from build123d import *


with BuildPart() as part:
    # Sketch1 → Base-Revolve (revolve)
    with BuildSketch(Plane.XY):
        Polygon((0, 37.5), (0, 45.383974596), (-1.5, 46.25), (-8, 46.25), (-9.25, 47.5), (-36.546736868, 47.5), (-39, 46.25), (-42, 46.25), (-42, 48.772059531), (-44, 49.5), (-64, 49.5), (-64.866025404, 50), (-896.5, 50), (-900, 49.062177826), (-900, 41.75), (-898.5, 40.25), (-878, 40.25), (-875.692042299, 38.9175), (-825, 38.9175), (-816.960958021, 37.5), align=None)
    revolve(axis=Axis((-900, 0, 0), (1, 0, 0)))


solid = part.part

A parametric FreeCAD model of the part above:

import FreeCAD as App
import Part
import Sketcher

V = App.Vector
Q = App.Units.Quantity


def add_polygon(sketch, points):
    """Adds a closed chain of lines whose ends are joined by coincident constraints."""
    first, n = sketch.GeometryCount, len(points)
    for a, b in zip(points, points[1:] + points[:1]):
        sketch.addGeometry(Part.LineSegment(App.Vector(*a, 0), App.Vector(*b, 0)), False)
    for i in range(n):
        sketch.addConstraint(Sketcher.Constraint("Coincident", first + i, 2, first + (i + 1) % n, 1))

doc = App.newDocument("Part")
body = doc.addObject("PartDesign::Body", "Body")

# Sketch on XY plane
sketch1 = body.newObject("Sketcher::SketchObject", "Sketch")
sketch1.AttachmentSupport = (doc.getObject("XY_Plane"), [""])
sketch1.MapMode = "FlatFace"
add_polygon(sketch1, [(0, 37.5), (0, 45.4), (-1.5, 46.2), (-8, 46.2), (-9.2, 47.5), (-36.5, 47.5), (-39, 46.2), (-42, 46.2), (-42, 48.8), (-44, 49.5), (-64, 49.5), (-64.9, 50), (-896.5, 50), (-900, 49.1), (-900, 41.8), (-898.5, 40.2), (-878, 40.2), (-875.7, 38.9), (-825, 38.9), (-817, 37.5)])  # lines 0-19
sketch1.addConstraint(Sketcher.Constraint("Vertical", 0))
sketch1.addConstraint(Sketcher.Constraint("Horizontal", 2))
sketch1.addConstraint(Sketcher.Constraint("Horizontal", 4))
sketch1.addConstraint(Sketcher.Constraint("Horizontal", 6))
sketch1.addConstraint(Sketcher.Constraint("Vertical", 7))
sketch1.addConstraint(Sketcher.Constraint("Horizontal", 9))
sketch1.addConstraint(Sketcher.Constraint("Horizontal", 11))
sketch1.addConstraint(Sketcher.Constraint("Vertical", 13))
sketch1.addConstraint(Sketcher.Constraint("Horizontal", 15))
sketch1.addConstraint(Sketcher.Constraint("Horizontal", 17))
sketch1.addConstraint(Sketcher.Constraint("Horizontal", 19))
sketch1.addConstraint(Sketcher.Constraint("PointOnObject", 0, 2, -2))
sketch1.addConstraint(Sketcher.Constraint("Parallel", 1, 10))
sketch1.addConstraint(Sketcher.Constraint("Parallel", 3, 14))
sketch1.addConstraint(Sketcher.Constraint("Parallel", 10, 16))
sketch1.addConstraint(Sketcher.Constraint("Horizontal", 2, 2, 5, 2))
sketch1.addConstraint(Sketcher.Constraint("DistanceX", 6, 2, 6, 1, 3.0))
sketch1.addConstraint(Sketcher.Constraint("DistanceX", 9, 2, 9, 1, 20.0))
sketch1.addConstraint(Sketcher.Constraint("Angle", 1, Q("150 deg")))
sketch1.addConstraint(Sketcher.Constraint("Angle", 3, Q("135 deg")))
sketch1.addConstraint(Sketcher.Constraint("Angle", 5, Q("-153 deg")))
sketch1.addConstraint(Sketcher.Constraint("Angle", 8, Q("160 deg")))
sketch1.addConstraint(Sketcher.Constraint("Angle", 12, Q("-165 deg")))
sketch1.addConstraint(Sketcher.Constraint("Angle", 18, Q("-10 deg")))
sketch1.addConstraint(Sketcher.Constraint("Distance", 10, 1.0))
sketch1.addConstraint(Sketcher.Constraint("DistanceX", 2, 2, 2, 1, 6.5))
sketch1.addConstraint(Sketcher.Constraint("DistanceX", 15, 1, 15, 2, 20.5))
sketch1.addConstraint(Sketcher.Constraint("DistanceX", 2, 2, -1, 1, 8.0))
sketch1.addConstraint(Sketcher.Constraint("DistanceX", 5, 2, -1, 1, 39.0))
sketch1.addConstraint(Sketcher.Constraint("DistanceX", 8, 2, -1, 1, 44.0))
sketch1.addConstraint(Sketcher.Constraint("DistanceY", -1, 1, 10, 2, 50.0))
sketch1.addConstraint(Sketcher.Constraint("DistanceX", 12, 2, -1, 1, 900.0))
sketch1.addConstraint(Sketcher.Constraint("DistanceX", 15, 2, -1, 1, 878.0))
sketch1.addConstraint(Sketcher.Constraint("DistanceX", 17, 2, -1, 1, 825.0))
sketch1.addConstraint(Sketcher.Constraint("DistanceY", 4, 2, 8, 2, 2.0))
sketch1.addConstraint(Sketcher.Constraint("DistanceX", 14, 2, 11, 2, 2.0))
sketch1.addConstraint(Sketcher.Constraint("DistanceY", 19, 2, 3, 2, 10.0))
sketch1.addConstraint(Sketcher.Constraint("DistanceY", -1, 1, 1, 2, 46.25))
sketch1.addConstraint(Sketcher.Constraint("DistanceY", -1, 1, 13, 2, 41.75))
sketch1.addConstraint(Sketcher.Constraint("Distance", 16, 2.665))
revolution = body.newObject("PartDesign::Revolution", "Revolution")
revolution.Profile = sketch1
revolution.ReferenceAxis = (sketch1, ["H_Axis"])
revolution.Angle = 360

doc.recompute()
